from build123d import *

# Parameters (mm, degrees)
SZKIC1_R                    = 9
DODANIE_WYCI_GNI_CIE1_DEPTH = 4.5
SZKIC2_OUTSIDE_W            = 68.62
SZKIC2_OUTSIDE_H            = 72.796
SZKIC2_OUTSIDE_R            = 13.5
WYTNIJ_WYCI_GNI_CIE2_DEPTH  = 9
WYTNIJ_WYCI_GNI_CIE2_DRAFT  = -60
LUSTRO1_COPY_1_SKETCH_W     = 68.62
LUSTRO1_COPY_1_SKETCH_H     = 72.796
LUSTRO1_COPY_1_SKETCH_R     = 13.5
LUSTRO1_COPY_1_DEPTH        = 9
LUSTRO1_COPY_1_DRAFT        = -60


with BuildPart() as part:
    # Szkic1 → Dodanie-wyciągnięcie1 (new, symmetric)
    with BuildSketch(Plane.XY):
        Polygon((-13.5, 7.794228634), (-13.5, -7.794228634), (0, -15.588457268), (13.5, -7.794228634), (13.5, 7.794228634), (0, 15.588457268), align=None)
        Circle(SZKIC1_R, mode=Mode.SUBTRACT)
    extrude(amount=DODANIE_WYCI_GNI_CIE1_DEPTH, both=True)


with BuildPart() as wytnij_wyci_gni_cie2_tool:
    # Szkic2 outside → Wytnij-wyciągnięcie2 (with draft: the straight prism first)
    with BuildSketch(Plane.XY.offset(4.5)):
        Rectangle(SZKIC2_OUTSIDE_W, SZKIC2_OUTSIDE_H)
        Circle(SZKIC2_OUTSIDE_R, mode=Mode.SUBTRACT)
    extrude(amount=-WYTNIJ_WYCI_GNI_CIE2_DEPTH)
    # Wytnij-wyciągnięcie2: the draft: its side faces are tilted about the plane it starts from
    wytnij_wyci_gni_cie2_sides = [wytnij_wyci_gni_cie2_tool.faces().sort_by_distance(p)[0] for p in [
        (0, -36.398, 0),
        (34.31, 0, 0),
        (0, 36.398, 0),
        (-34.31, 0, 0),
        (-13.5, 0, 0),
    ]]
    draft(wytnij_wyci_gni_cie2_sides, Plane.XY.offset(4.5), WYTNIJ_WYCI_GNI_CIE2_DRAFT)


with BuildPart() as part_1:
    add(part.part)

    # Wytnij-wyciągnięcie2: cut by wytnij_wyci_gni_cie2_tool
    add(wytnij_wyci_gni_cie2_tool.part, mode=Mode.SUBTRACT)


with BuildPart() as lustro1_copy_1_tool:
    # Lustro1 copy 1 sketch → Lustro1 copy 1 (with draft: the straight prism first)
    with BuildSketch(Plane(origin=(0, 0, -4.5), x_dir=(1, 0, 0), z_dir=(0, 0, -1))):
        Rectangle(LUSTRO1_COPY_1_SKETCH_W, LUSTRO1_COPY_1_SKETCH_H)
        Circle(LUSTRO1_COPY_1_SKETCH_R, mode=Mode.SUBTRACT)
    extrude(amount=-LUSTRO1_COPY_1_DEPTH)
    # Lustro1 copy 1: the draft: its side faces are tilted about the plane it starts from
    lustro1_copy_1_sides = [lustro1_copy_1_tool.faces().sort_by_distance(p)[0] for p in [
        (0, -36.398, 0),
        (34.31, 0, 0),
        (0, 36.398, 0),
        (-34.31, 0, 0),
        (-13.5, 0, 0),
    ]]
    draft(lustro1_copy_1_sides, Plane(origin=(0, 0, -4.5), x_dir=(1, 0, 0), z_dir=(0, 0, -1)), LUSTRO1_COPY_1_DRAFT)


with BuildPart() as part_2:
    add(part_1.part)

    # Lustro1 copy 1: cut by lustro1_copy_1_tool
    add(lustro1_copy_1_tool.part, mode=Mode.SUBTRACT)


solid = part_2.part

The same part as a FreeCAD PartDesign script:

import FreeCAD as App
import Part
import Sketcher
from FreeCAD import Vector
Q = App.Units.Quantity


def faces_at(feature, points):
    """Names of the faces that lie closest to the given points."""
    faces = feature.Shape.Faces
    near = lambda p: min(range(len(faces)), key=lambda i: faces[i].distToShape(Part.Vertex(*p))[0])
    return sorted({f"Face{near(p) + 1}" for p in points})


def add_polygon(sketch, points):
    """Adds a closed chain of lines whose ends are joined by coincident constraints."""
    first, n = sketch.GeometryCount, len(points)
    for a, b in zip(points, points[1:] + points[:1]):
        sketch.addGeometry(Part.LineSegment(App.Vector(*a, 0), App.Vector(*b, 0)), False)
    for i in range(n):
        sketch.addConstraint(Sketcher.Constraint("Coincident", first + i, 2, first + (i + 1) % n, 1))

doc = App.newDocument("Part")
body = doc.addObject("PartDesign::Body", "Body")

# Sketch on XY plane
sketch1 = body.newObject("Sketcher::SketchObject", "Sketch")
sketch1.AttachmentSupport = (doc.getObject("XY_Plane"), [""])
sketch1.MapMode = "FlatFace"
add_polygon(sketch1, [(-14, 8), (-14, -8), (0, -16), (14, -8), (14, 8), (0, 16)])  # lines 0-5
sketch1.addGeometry(Part.Circle(Vector(0, 0, 0), Vector(0, 0, 1), 9), False)  # 6
sketch1.addConstraint([
    Sketcher.Constraint("Vertical", 0),
    Sketcher.Constraint("Vertical", 3),
    Sketcher.Constraint("Coincident", 6, 3, -1, 1),
    Sketcher.Constraint("Symmetric", 0, 2, 3, 2, -1, 1),
    Sketcher.Constraint("Symmetric", 1, 2, 4, 2, -1, 1),
    Sketcher.Constraint("PointOnObject", 1, 2, -2),
    Sketcher.Constraint("Parallel", 2, 5),
    Sketcher.Constraint("Horizontal", 0, 2, 2, 2),
    Sketcher.Constraint("Diameter", 6, Q("18 mm")),
    Sketcher.Constraint("Angle", 1, Q("-30 deg")),
    Sketcher.Constraint("DistanceX", 0, 2, 2, 2, Q("27 mm")),
    Sketcher.Constraint("DistanceY", 0, 2, 0, 1, Q("15.588457 mm")),
])
pad1 = body.newObject("PartDesign::Pad", "Pad")
pad1.Profile = sketch1
pad1.Length = 9
pad1.Midplane = True
body2 = doc.addObject("PartDesign::Body", "Body001")

# Sketch on XY plane
sketch2 = body2.newObject("Sketcher::SketchObject", "Sketch001")
sketch2.AttachmentSupport = (doc.getObject("XY_Plane001"), [""])
sketch2.MapMode = "FlatFace"
sketch2.AttachmentOffset = App.Placement(Vector(0, 0, 4.5), App.Rotation())
add_polygon(sketch2, [(-34, 36), (-34, -36), (34, -36), (34, 36)])  # lines 0-3
sketch2.addGeometry(Part.Circle(Vector(0, 0, 0), Vector(0, 0, 1), 14), False)  # 4
sketch2.addConstraint([
    Sketcher.Constraint("Vertical", 0),
    Sketcher.Constraint("Horizontal", 1),
    Sketcher.Constraint("Vertical", 2),
    Sketcher.Constraint("Horizontal", 3),
    Sketcher.Constraint("Coincident", 4, 3, -1, 1),
    Sketcher.Constraint("Symmetric", 0, 2, 2, 2, -1, 1),
    Sketcher.Constraint("Diameter", 4, Q("27 mm")),
    Sketcher.Constraint("DistanceX", 1, 1, 1, 2, Q("68.62 mm")),
    Sketcher.Constraint("DistanceY", 0, 2, 0, 1, Q("72.796 mm")),
])
pad2 = body2.newObject("PartDesign::Pad", "Pad001")
pad2.Profile = sketch2
pad2.Length = 9
pad2.Reversed = True
doc.recompute()

datumplane = body2.newObject("PartDesign::Plane", "DatumPlane")
datumplane.AttachmentSupport = (doc.getObject("XY_Plane001"), [""])
datumplane.MapMode = "FlatFace"
datumplane.AttachmentOffset = App.Placement(Vector(0, 0, 4.5), App.Rotation())
draft = body2.newObject("PartDesign::Draft", "Draft")
draft.Base = (pad2, faces_at(pad2, [
    (0, -36.398, 0),
    (34.31, 0, 0),
    (0, 36.398, 0),
    (-34.31, 0, 0),
    (-13.5, 0, 0),
]))
draft.NeutralPlane = (datumplane, [""])
draft.Angle = 60
draft.Reversed = True
doc.recompute()

boolean = body.newObject("PartDesign::Boolean", "Boolean")
boolean.Type = "Cut"
boolean.addObjects([body2])
body3 = doc.addObject("PartDesign::Body", "Body002")

# Sketch on XY plane
sketch3 = body3.newObject("Sketcher::SketchObject", "Sketch002")
sketch3.AttachmentSupport = (doc.getObject("XY_Plane002"), [""])
sketch3.MapMode = "FlatFace"
sketch3.AttachmentOffset = App.Placement(Vector(0, 0, -4.5), App.Rotation())
add_polygon(sketch3, [(-34, -36), (-34, 36), (34, 36), (34, -36)])  # lines 0-3
sketch3.addGeometry(Part.Circle(Vector(0, 0, 0), Vector(0, 0, 1), 14), False)  # 4
sketch3.addConstraint([
    Sketcher.Constraint("Vertical", 0),
    Sketcher.Constraint("Horizontal", 1),
    Sketcher.Constraint("Vertical", 2),
    Sketcher.Constraint("Horizontal", 3),
    Sketcher.Constraint("Coincident", 4, 3, -1, 1),
    Sketcher.Constraint("Symmetric", 0, 2, 2, 2, -1, 1),
    Sketcher.Constraint("Diameter", 4, Q("27 mm")),
    Sketcher.Constraint("DistanceX", 1, 1, 1, 2, Q("68.62 mm")),
    Sketcher.Constraint("DistanceY", 0, 1, 0, 2, Q("72.796 mm")),
])
pad3 = body3.newObject("PartDesign::Pad", "Pad002")
pad3.Profile = sketch3
pad3.Length = 9
doc.recompute()

datumplane2 = body3.newObject("PartDesign::Plane", "DatumPlane001")
datumplane2.AttachmentSupport = (doc.getObject("XY_Plane002"), [""])
datumplane2.MapMode = "FlatFace"
datumplane2.AttachmentOffset = App.Placement(Vector(0, 0, -4.5), App.Rotation())
draft2 = body3.newObject("PartDesign::Draft", "Draft001")
draft2.Base = (pad3, faces_at(pad3, [
    (0, -36.398, 0),
    (34.31, 0, 0),
    (0, 36.398, 0),
    (-34.31, 0, 0),
    (-13.5, 0, 0),
]))
draft2.NeutralPlane = (datumplane2, [""])
draft2.Angle = 60
draft2.Reversed = False
doc.recompute()

boolean2 = body.newObject("PartDesign::Boolean", "Boolean001")
boolean2.Type = "Cut"
boolean2.addObjects([body3])

doc.recompute()
